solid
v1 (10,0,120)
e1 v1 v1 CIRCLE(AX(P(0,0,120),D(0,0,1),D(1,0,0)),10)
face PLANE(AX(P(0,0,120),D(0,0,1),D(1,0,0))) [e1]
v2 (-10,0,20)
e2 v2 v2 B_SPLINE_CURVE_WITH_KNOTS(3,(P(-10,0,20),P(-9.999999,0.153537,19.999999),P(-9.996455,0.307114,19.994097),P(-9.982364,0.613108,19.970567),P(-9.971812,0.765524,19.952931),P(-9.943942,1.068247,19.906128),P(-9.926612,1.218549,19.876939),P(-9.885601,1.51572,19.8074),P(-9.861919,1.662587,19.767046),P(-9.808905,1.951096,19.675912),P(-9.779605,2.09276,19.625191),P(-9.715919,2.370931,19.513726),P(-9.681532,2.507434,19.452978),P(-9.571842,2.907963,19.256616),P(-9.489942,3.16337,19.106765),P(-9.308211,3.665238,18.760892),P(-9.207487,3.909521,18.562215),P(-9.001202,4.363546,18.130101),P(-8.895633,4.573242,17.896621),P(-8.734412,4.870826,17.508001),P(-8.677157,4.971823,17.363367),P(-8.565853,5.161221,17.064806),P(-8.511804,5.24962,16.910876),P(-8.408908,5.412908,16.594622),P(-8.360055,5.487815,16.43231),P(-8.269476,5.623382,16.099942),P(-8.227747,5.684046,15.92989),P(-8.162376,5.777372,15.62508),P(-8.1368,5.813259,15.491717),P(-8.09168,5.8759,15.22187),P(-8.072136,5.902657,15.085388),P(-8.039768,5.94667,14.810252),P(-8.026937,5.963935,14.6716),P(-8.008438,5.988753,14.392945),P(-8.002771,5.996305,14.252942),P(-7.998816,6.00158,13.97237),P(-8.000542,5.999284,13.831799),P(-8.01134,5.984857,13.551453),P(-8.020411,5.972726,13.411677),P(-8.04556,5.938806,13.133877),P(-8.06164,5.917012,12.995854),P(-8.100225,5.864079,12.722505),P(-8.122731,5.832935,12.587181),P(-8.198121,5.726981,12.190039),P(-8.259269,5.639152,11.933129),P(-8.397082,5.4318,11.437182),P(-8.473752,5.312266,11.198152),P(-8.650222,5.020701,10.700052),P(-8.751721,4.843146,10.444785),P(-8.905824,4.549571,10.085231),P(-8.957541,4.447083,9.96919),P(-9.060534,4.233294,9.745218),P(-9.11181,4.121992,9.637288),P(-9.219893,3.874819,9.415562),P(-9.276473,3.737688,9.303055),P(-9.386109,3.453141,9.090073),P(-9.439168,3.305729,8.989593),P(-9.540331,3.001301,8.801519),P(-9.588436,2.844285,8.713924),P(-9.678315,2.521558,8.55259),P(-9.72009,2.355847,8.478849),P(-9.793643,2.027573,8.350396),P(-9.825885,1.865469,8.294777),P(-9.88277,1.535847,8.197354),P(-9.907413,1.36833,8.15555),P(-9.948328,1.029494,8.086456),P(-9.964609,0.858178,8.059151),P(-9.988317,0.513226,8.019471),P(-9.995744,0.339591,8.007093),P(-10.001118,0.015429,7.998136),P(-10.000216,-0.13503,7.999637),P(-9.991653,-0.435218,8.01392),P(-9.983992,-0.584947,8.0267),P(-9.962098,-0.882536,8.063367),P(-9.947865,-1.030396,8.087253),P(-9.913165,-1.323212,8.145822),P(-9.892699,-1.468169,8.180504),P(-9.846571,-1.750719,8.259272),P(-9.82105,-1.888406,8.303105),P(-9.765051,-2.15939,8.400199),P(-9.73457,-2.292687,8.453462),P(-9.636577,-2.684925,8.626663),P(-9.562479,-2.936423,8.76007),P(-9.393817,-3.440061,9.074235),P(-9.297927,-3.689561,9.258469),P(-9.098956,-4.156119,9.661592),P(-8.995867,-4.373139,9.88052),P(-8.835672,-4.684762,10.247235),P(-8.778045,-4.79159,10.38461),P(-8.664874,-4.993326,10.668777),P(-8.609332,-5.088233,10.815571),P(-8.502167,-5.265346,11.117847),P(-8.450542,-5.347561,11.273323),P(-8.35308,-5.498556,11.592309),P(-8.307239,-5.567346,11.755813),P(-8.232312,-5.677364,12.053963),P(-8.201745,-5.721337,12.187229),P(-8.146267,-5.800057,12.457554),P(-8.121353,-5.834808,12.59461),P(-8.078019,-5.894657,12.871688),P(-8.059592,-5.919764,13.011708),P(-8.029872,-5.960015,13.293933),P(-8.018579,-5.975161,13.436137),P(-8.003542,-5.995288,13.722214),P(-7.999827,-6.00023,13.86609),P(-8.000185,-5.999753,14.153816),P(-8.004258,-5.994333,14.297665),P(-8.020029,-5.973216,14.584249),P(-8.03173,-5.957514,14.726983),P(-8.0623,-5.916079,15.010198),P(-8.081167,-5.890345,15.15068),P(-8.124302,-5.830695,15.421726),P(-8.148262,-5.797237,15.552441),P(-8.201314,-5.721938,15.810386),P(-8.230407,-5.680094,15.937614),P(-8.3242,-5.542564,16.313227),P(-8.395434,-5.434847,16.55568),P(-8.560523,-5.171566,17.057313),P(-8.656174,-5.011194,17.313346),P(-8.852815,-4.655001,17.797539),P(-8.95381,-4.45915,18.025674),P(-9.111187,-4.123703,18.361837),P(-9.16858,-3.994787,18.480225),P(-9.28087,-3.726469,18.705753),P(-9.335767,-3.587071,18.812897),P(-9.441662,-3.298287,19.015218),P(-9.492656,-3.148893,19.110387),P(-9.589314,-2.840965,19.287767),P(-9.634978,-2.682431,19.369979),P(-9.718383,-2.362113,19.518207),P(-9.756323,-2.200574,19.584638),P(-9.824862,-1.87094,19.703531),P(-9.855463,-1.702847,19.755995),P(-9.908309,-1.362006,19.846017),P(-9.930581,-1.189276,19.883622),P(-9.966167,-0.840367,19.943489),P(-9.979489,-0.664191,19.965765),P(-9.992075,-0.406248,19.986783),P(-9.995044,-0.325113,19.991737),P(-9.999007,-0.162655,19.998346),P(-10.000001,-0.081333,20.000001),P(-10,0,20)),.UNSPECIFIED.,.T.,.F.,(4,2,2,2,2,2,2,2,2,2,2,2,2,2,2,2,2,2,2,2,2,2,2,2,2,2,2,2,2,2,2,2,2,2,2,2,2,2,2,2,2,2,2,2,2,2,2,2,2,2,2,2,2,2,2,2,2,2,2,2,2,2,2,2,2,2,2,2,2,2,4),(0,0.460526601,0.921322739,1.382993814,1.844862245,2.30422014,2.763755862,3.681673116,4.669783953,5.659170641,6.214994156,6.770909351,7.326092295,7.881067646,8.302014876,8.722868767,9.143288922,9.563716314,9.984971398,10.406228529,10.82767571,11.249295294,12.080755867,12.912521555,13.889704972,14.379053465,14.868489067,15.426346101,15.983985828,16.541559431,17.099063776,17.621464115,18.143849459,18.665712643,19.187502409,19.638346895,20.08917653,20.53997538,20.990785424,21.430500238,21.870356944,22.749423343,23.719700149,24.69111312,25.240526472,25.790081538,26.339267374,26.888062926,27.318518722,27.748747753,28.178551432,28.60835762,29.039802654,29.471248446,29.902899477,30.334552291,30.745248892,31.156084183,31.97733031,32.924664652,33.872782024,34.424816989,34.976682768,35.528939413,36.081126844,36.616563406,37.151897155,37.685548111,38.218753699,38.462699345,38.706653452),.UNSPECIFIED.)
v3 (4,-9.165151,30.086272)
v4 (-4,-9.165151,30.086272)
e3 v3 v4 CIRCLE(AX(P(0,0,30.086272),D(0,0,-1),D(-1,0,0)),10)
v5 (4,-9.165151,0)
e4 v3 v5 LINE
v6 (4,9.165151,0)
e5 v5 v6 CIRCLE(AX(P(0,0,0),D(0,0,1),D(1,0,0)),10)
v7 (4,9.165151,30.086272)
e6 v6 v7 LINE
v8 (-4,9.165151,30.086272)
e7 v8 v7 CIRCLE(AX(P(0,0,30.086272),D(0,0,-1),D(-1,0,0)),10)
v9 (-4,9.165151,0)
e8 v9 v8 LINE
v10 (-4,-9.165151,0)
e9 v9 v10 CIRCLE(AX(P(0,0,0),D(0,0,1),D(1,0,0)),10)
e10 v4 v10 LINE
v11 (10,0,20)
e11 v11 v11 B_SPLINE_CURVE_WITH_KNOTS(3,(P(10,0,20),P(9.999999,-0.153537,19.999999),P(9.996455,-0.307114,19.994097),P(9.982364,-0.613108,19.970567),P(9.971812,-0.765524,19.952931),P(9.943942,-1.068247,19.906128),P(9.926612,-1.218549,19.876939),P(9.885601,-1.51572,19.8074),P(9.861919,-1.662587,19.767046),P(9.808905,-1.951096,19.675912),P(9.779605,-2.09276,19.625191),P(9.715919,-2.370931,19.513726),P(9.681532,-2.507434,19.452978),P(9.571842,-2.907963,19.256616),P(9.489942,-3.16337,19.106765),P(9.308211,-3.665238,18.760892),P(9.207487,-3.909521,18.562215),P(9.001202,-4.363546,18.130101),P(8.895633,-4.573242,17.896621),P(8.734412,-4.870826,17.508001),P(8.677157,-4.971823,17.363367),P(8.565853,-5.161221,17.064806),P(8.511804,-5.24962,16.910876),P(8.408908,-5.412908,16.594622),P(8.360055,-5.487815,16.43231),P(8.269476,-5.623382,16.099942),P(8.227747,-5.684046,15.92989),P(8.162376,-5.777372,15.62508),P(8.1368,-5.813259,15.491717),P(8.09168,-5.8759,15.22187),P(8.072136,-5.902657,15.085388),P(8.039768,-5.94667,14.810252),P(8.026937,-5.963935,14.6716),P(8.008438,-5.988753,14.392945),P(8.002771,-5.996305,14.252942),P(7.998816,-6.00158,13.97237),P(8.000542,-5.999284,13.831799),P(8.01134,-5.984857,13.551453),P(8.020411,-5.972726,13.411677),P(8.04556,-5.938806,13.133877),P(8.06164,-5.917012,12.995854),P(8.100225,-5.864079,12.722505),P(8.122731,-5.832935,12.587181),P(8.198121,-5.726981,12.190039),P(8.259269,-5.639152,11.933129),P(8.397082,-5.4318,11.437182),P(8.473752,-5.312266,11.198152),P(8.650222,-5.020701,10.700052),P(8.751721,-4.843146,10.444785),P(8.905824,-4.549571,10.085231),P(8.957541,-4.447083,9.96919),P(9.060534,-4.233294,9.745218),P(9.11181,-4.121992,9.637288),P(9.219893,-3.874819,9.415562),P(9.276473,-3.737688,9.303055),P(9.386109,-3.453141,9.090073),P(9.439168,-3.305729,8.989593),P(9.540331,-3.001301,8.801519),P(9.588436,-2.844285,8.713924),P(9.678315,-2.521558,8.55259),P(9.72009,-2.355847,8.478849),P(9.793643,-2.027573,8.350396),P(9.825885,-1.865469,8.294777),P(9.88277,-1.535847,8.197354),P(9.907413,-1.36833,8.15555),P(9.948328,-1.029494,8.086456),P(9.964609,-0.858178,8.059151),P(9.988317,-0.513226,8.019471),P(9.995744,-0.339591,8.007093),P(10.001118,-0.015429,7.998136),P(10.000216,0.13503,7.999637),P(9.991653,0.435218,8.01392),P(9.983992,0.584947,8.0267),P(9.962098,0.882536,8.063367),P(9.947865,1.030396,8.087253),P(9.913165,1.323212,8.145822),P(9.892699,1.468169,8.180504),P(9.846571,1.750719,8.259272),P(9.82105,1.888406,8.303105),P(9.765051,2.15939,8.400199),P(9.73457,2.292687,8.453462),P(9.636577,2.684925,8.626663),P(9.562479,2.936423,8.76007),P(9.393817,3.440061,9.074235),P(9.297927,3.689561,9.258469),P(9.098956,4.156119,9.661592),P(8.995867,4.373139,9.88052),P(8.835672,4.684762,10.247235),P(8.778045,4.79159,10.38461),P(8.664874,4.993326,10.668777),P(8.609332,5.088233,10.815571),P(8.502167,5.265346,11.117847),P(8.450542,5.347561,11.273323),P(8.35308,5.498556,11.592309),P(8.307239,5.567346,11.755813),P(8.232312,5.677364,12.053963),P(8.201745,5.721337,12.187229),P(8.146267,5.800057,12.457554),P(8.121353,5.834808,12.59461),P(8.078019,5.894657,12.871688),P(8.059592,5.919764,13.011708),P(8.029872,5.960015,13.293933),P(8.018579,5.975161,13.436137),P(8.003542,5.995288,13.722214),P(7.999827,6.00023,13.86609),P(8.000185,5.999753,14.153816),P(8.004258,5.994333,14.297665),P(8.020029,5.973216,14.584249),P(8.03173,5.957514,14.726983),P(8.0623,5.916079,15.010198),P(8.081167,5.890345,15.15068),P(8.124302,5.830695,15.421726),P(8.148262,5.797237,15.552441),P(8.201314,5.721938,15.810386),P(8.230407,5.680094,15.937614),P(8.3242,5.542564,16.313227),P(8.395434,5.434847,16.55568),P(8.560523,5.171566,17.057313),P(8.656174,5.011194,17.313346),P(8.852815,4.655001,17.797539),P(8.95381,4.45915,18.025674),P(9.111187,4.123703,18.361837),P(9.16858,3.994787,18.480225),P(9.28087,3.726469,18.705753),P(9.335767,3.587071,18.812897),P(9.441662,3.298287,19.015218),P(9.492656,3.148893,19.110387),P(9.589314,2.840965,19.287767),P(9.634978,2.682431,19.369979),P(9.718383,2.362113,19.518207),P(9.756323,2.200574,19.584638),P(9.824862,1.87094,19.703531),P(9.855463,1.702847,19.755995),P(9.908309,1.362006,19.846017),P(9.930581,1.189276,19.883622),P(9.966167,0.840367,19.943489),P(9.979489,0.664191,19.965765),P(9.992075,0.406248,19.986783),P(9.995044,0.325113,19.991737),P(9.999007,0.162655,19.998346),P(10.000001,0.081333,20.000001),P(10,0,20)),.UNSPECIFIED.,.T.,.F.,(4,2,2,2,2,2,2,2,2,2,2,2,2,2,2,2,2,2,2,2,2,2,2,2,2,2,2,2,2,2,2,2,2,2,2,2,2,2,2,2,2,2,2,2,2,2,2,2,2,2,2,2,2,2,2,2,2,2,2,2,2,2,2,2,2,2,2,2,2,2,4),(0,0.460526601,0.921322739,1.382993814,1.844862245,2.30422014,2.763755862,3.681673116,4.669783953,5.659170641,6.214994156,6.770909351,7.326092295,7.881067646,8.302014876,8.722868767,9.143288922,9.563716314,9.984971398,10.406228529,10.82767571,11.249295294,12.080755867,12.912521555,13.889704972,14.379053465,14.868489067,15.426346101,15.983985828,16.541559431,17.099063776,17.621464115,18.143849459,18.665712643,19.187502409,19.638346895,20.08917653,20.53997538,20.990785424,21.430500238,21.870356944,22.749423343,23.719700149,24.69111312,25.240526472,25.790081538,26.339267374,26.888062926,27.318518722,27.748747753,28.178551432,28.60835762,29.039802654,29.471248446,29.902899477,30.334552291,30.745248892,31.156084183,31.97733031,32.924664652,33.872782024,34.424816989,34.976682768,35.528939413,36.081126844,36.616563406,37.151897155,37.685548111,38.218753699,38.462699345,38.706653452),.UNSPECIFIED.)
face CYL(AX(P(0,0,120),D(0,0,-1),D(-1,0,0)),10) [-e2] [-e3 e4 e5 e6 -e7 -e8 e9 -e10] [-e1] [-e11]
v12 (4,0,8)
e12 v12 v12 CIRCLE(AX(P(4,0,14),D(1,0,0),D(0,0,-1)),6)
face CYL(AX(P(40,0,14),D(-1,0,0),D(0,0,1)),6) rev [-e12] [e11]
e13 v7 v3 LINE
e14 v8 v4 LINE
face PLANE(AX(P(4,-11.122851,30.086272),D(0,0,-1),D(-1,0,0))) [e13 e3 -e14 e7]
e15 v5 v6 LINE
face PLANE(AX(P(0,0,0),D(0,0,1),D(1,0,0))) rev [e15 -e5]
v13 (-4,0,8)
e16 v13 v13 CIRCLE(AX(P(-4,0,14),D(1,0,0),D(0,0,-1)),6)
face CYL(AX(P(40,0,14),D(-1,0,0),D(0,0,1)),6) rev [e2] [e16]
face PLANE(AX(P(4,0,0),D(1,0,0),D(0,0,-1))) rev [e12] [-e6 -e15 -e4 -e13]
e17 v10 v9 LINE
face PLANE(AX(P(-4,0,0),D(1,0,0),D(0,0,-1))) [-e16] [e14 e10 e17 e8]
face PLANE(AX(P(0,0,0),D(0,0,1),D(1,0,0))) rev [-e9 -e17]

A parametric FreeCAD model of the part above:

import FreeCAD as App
import Part
import Sketcher
from FreeCAD import Vector
Q = App.Units.Quantity

doc = App.newDocument("Part")
body = doc.addObject("PartDesign::Body", "Body")

# Sketch on XY plane
sketch1 = body.newObject("Sketcher::SketchObject", "Sketch")
sketch1.AttachmentSupport = (doc.getObject("XY_Plane"), [""])
sketch1.MapMode = "FlatFace"
sketch1.addGeometry(Part.Circle(Vector(0, 0, 0), Vector(0, 0, 1), 10), False)
sketch1.addConstraint(Sketcher.Constraint("Coincident", 0, 3, -1, 1))
sketch1.addConstraint(Sketcher.Constraint("Diameter", 0, Q("20 mm")))
pad1 = body.newObject("PartDesign::Pad", "Pad")
pad1.Profile = sketch1
pad1.Length = 120

# Sketch on YZ plane
sketch2 = body.newObject("Sketcher::SketchObject", "Sketch001")
sketch2.AttachmentSupport = (doc.getObject("YZ_Plane"), [""])
sketch2.MapMode = "FlatFace"
sketch2.addGeometry(Part.Circle(Vector(0, 14, 0), Vector(0, 0, 1), 6), False)
sketch2.addConstraint(Sketcher.Constraint("PointOnObject", 0, 3, -2))
sketch2.addConstraint(Sketcher.Constraint("Diameter", 0, Q("12 mm")))
sketch2.addConstraint(Sketcher.Constraint("DistanceY", -1, 1, 0, 3, Q("14 mm")))
pocket1 = body.newObject("PartDesign::Pocket", "Pocket")
pocket1.Profile = sketch2
pocket1.Type = "ThroughAll"
pocket1.Midplane = True

# Sketch on YZ plane
sketch3 = body.newObject("Sketcher::SketchObject", "Sketch002")
sketch3.AttachmentSupport = (doc.getObject("YZ_Plane"), [""])
sketch3.MapMode = "FlatFace"
sketch3.addGeometry(Part.LineSegment(Vector(-11.122851, 30.086272, 0), Vector(-11.122851, -3.619337, 0)), False)
sketch3.addGeometry(Part.LineSegment(Vector(-11.122851, -3.619337, 0), Vector(12.471075, -3.619337, 0)), False)
sketch3.addGeometry(Part.LineSegment(Vector(12.471075, -3.619337, 0), Vector(12.471075, 30.086272, 0)), False)
sketch3.addGeometry(Part.LineSegment(Vector(12.471075, 30.086272, 0), Vector(-11.122851, 30.086272, 0)), False)
sketch3.addConstraint(Sketcher.Constraint("Coincident", 0, 2, 1, 1))
sketch3.addConstraint(Sketcher.Constraint("Coincident", 1, 2, 2, 1))
sketch3.addConstraint(Sketcher.Constraint("Coincident", 2, 2, 3, 1))
sketch3.addConstraint(Sketcher.Constraint("Coincident", 3, 2, 0, 1))
sketch3.addConstraint(Sketcher.Constraint("Vertical", 0))
sketch3.addConstraint(Sketcher.Constraint("Horizontal", 1))
sketch3.addConstraint(Sketcher.Constraint("Vertical", 2))
sketch3.addConstraint(Sketcher.Constraint("Horizontal", 3))
sketch3.addConstraint(Sketcher.Constraint("DistanceY", 0, 2, 0, 1, Q("33.705609 mm")))
sketch3.addConstraint(Sketcher.Constraint("DistanceX", 1, 1, 1, 2, Q("23.593926 mm")))
sketch3.addConstraint(Sketcher.Constraint("DistanceX", 0, 2, -1, 1, Q("11.122851 mm")))
sketch3.addConstraint(Sketcher.Constraint("DistanceY", -1, 1, 2, 2, Q("30.086272 mm")))
pocket2 = body.newObject("PartDesign::Pocket", "Pocket001")
pocket2.Profile = sketch3
pocket2.Type = "TwoLengths"
pocket2.Length = 4
pocket2.Length2 = 4
pocket2.Reversed = True

doc.recompute()
